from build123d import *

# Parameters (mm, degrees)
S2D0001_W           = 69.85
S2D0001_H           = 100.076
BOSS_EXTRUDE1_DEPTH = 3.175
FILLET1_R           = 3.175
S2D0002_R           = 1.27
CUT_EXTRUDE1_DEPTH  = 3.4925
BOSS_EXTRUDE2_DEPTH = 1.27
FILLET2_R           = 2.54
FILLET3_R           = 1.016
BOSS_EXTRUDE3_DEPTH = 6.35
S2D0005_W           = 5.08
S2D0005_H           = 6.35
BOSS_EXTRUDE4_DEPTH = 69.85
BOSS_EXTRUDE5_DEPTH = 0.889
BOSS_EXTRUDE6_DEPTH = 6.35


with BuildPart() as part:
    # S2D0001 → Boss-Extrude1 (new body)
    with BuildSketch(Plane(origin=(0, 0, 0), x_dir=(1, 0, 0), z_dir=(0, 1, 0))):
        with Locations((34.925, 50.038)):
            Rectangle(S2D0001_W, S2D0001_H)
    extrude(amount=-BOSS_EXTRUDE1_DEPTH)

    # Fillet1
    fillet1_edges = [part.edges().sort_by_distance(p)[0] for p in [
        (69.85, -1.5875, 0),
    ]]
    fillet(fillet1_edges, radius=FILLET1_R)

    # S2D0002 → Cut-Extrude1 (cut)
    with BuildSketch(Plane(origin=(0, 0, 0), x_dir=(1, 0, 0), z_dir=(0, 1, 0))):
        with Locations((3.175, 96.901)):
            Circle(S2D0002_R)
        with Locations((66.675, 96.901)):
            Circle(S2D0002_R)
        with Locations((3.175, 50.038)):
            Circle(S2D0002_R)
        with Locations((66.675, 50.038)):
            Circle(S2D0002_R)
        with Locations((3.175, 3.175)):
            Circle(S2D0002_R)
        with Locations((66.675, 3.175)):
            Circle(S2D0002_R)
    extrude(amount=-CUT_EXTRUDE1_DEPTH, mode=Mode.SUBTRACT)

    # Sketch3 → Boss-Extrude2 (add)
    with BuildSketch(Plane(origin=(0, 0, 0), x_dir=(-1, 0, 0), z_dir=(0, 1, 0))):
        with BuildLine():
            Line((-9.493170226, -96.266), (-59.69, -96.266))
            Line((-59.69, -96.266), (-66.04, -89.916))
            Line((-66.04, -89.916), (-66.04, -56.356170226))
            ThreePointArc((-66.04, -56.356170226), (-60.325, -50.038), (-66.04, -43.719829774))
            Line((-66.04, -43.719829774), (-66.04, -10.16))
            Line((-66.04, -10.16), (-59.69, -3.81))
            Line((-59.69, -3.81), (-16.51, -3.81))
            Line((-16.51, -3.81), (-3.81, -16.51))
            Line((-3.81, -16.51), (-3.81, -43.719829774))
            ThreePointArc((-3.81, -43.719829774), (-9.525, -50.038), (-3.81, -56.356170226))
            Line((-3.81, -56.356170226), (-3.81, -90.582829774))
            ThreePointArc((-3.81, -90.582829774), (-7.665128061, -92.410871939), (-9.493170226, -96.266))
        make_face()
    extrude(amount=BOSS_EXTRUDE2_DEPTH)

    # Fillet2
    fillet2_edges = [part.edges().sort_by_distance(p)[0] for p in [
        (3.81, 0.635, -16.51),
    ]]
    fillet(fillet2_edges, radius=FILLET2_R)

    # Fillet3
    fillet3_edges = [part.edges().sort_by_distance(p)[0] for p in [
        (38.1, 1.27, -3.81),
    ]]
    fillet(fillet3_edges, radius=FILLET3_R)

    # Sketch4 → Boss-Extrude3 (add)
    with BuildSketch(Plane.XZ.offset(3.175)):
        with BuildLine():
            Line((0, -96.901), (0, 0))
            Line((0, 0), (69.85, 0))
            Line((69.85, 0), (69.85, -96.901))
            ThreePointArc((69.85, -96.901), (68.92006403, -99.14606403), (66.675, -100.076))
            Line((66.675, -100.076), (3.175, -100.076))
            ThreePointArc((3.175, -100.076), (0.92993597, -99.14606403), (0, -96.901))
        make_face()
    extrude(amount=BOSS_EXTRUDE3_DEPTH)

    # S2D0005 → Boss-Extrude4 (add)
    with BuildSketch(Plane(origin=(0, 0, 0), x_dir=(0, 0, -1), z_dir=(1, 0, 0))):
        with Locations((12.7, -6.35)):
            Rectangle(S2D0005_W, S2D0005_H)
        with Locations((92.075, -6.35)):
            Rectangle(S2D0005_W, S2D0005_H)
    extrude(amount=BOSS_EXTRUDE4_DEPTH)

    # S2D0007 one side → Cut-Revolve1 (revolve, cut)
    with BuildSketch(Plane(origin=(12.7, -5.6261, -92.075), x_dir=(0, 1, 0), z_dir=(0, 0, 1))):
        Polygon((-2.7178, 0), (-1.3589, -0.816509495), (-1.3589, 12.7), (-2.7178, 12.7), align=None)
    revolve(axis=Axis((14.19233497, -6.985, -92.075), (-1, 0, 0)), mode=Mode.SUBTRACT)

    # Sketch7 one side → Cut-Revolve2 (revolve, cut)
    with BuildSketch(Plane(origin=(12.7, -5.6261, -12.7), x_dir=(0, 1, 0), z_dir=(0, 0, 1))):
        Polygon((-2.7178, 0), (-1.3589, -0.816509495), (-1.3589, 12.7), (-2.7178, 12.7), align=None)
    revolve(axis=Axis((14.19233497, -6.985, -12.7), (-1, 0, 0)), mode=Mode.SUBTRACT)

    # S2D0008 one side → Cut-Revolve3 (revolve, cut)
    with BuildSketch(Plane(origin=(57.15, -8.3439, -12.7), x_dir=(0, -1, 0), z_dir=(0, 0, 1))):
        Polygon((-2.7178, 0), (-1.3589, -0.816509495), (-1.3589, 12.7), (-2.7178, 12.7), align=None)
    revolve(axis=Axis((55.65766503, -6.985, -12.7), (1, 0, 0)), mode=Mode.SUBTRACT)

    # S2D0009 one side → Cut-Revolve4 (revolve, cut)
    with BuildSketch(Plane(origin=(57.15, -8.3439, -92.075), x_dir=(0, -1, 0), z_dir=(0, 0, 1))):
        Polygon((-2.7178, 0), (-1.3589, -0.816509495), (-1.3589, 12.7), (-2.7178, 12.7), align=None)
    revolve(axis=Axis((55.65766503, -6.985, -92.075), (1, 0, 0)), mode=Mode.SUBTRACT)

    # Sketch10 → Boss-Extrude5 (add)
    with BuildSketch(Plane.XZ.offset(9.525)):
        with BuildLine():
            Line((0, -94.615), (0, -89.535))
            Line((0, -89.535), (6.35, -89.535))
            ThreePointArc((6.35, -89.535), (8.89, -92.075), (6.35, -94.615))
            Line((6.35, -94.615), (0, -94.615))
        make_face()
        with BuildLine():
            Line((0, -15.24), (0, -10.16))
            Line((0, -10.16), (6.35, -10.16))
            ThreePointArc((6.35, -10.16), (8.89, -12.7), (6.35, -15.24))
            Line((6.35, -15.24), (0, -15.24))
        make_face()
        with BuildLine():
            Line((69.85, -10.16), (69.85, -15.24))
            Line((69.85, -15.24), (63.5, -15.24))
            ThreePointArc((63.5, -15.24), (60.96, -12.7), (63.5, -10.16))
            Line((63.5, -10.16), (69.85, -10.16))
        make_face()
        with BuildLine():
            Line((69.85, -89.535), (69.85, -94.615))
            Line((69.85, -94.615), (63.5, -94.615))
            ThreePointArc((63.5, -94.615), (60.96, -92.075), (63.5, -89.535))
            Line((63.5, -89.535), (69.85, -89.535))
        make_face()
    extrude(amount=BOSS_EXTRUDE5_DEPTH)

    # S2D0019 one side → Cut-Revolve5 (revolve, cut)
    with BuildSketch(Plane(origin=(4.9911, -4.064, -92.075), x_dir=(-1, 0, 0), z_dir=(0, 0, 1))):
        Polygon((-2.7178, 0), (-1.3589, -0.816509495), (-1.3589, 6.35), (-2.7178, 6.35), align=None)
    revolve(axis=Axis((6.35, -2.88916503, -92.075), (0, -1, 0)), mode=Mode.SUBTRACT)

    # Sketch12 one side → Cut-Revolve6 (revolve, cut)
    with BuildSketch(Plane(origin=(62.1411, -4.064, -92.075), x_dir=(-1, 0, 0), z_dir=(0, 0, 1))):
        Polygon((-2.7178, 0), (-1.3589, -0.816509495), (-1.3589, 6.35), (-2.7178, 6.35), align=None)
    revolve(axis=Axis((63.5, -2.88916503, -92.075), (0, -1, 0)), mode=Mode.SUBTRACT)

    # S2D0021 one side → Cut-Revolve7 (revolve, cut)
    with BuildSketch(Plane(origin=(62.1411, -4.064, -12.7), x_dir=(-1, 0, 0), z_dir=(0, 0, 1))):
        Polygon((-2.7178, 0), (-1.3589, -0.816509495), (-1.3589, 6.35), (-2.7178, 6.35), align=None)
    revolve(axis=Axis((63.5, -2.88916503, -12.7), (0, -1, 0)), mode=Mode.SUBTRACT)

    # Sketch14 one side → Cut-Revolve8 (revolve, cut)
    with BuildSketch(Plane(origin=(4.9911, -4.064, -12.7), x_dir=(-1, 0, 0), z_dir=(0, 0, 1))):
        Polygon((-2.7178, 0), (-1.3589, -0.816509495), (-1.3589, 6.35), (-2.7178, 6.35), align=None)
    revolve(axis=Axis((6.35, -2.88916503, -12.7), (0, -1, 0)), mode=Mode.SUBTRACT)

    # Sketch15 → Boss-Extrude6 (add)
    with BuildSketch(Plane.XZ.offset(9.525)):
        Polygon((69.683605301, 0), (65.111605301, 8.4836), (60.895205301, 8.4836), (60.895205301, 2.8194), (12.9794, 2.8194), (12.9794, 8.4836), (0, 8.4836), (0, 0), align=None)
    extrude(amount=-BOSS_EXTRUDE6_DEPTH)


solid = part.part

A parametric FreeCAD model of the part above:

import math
import FreeCAD as App
import Part
import Sketcher

V = App.Vector
Q = App.Units.Quantity


def edges_at(feature, points):
    """Names of the edges that pass closest to the given points."""
    edges = feature.Shape.Edges
    near = lambda p: min(range(len(edges)), key=lambda i: edges[i].distToShape(Part.Vertex(*p))[0])
    return sorted({f"Edge{near(p) + 1}" for p in points})


def add_polygon(sketch, points):
    """Adds a closed chain of lines whose ends are joined by coincident constraints."""
    first, n = sketch.GeometryCount, len(points)
    for a, b in zip(points, points[1:] + points[:1]):
        sketch.addGeometry(Part.LineSegment(App.Vector(*a, 0), App.Vector(*b, 0)), False)
    for i in range(n):
        sketch.addConstraint(Sketcher.Constraint("Coincident", first + i, 2, first + (i + 1) % n, 1))

doc = App.newDocument("Part")
body = doc.addObject("PartDesign::Body", "Body")

sketch1 = body.newObject("Sketcher::SketchObject", "Sketch")
sketch1.AttachmentSupport = (doc.getObject("XZ_Plane"), [""])
sketch1.MapMode = "FlatFace"
add_polygon(sketch1, [(0, -100), (0, 0), (70, 0), (70, -100)])
sketch1.addConstraint([
    Sketcher.Constraint("Vertical", 0),
    Sketcher.Constraint("Horizontal", 1),
    Sketcher.Constraint("Vertical", 2),
    Sketcher.Constraint("Horizontal", 3),
    Sketcher.Constraint("Coincident", 0, 2, -1, 1),
    Sketcher.Constraint("DistanceX", 1, 1, 1, 2, Q("2.75 in")),
    Sketcher.Constraint("DistanceY", 0, 1, 0, 2, Q("3.94 in")),
])
pad1 = body.newObject("PartDesign::Pad", "Pad")
pad1.Profile = sketch1
pad1.Length = Q("0.125 in")
doc.recompute()

fillet = body.newObject("PartDesign::Fillet", "Fillet")
fillet.Base = (pad1, edges_at(pad1, [(69.85, -1.587, 0)]))
fillet.Radius = Q("0.125 in")

sketch2 = body.newObject("Sketcher::SketchObject", "Sketch001")
sketch2.AttachmentSupport = (doc.getObject("XZ_Plane"), [""])
sketch2.MapMode = "FlatFace"
sketch2.addGeometry([
    Part.Circle(V(3.2, -96.9, 0), V(0, 0, 1), 1.3),
    Part.Circle(V(66.7, -96.9, 0), V(0, 0, 1), 1.3),
    Part.Circle(V(3.2, -50, 0), V(0, 0, 1), 1.3),
    Part.Circle(V(66.7, -50, 0), V(0, 0, 1), 1.3),
    Part.Circle(V(3.2, -3.2, 0), V(0, 0, 1), 1.3),
    Part.Circle(V(66.7, -3.2, 0), V(0, 0, 1), 1.3),
], False)
sketch2.addConstraint([
    Sketcher.Constraint("Equal", 0, 1),
    Sketcher.Constraint("Equal", 1, 2),
    Sketcher.Constraint("Equal", 2, 3),
    Sketcher.Constraint("Equal", 3, 4),
    Sketcher.Constraint("Equal", 4, 5),
    Sketcher.Constraint("Horizontal", 0, 3, 1, 3),
    Sketcher.Constraint("Horizontal", 2, 3, 3, 3),
    Sketcher.Constraint("Horizontal", 4, 3, 5, 3),
    Sketcher.Constraint("Vertical", 0, 3, 2, 3),
    Sketcher.Constraint("Vertical", 1, 3, 3, 3),
    Sketcher.Constraint("Vertical", 2, 3, 4, 3),
    Sketcher.Constraint("Vertical", 3, 3, 5, 3),
    Sketcher.Constraint("Diameter", 0, Q("0.1 in")),
    Sketcher.Constraint("DistanceX", 0, 3, 1, 3, Q("2.5 in")),
    Sketcher.Constraint("DistanceY", 2, 3, -1, 1, Q("1.97 in")),
    Sketcher.Constraint("DistanceY", 0, 3, 4, 3, Q("3.69 in")),
    Sketcher.Constraint("DistanceX", -1, 1, 0, 3, Q("0.125 in")),
    Sketcher.Constraint("DistanceY", 0, 3, -1, 1, Q("3.815 in")),
])
pocket1 = body.newObject("PartDesign::Pocket", "Pocket")
pocket1.Profile = sketch2
pocket1.Length = Q("0.1375 in")
pocket1.Reversed = True

sketch3 = body.newObject("Sketcher::SketchObject", "Sketch002")
sketch3.AttachmentSupport = (doc.getObject("XZ_Plane"), [""])
sketch3.MapMode = "FlatFace"
sketch3.addGeometry([
    Part.LineSegment(V(60, -96, 0), V(9, -96, 0)),
    Part.ArcOfCircle(Part.Circle(V(3, -97, 0), V(0, 0, 1), 6), math.radians(6), math.radians(84)),
    Part.LineSegment(V(4, -91, 0), V(4, -56, 0)),
    Part.ArcOfCircle(Part.Circle(V(3, -50, 0), V(0, 0, 1), 6), math.radians(-84), math.radians(84)),
    Part.LineSegment(V(4, -44, 0), V(4, -17, 0)),
    Part.LineSegment(V(4, -17, 0), V(17, -4, 0)),
    Part.LineSegment(V(17, -4, 0), V(60, -4, 0)),
    Part.LineSegment(V(60, -4, 0), V(66, -10, 0)),
    Part.LineSegment(V(66, -10, 0), V(66, -44, 0)),
    Part.ArcOfCircle(Part.Circle(V(67, -50, 0), V(0, 0, 1), 6), math.radians(96), math.radians(264)),
    Part.LineSegment(V(66, -56, 0), V(66, -90, 0)),
    Part.LineSegment(V(66, -90, 0), V(60, -96, 0)),
], False)
sketch3.addConstraint([
    Sketcher.Constraint("Coincident", 0, 2, 1, 1),
    Sketcher.Constraint("Coincident", 1, 2, 2, 1),
    Sketcher.Constraint("Coincident", 2, 2, 3, 1),
    Sketcher.Constraint("Coincident", 3, 2, 4, 1),
    Sketcher.Constraint("Coincident", 4, 2, 5, 1),
    Sketcher.Constraint("Coincident", 5, 2, 6, 1),
    Sketcher.Constraint("Coincident", 6, 2, 7, 1),
    Sketcher.Constraint("Coincident", 7, 2, 8, 1),
    Sketcher.Constraint("Coincident", 8, 2, 9, 1),
    Sketcher.Constraint("Coincident", 9, 2, 10, 1),
    Sketcher.Constraint("Coincident", 10, 2, 11, 1),
    Sketcher.Constraint("Coincident", 11, 2, 0, 1),
    Sketcher.Constraint("Horizontal", 0),
    Sketcher.Constraint("Vertical", 2),
    Sketcher.Constraint("Vertical", 4),
    Sketcher.Constraint("Horizontal", 6),
    Sketcher.Constraint("Vertical", 8),
    Sketcher.Constraint("Vertical", 10),
    Sketcher.Constraint("Equal", 1, 3),
    Sketcher.Constraint("Equal", 3, 9),
    Sketcher.Constraint("Perpendicular", 5, 7),
    Sketcher.Constraint("Perpendicular", 7, 11),
    Sketcher.Constraint("Horizontal", 3, 3, 9, 3),
    Sketcher.Constraint("Horizontal", 3, 2, 8, 2),
    Sketcher.Constraint("Horizontal", 2, 2, 9, 2),
    Sketcher.Constraint("Vertical", 1, 3, 3, 3),
    Sketcher.Constraint("Vertical", 2, 2, 3, 2),
    Sketcher.Constraint("Vertical", 6, 2, 11, 2),
    Sketcher.Constraint("Equal", 8, 10),
    Sketcher.Constraint("Equal", 7, 11),
    Sketcher.Constraint("Radius", 1, Q("0.25 in")),
    Sketcher.Constraint("DistanceX", 6, 1, 6, 2, Q("1.7 in")),
    Sketcher.Constraint("DistanceX", -1, 1, 7, 2, Q("2.6 in")),
    Sketcher.Constraint("DistanceY", 7, 2, -1, 1, Q("0.4 in")),
    Sketcher.Constraint("DistanceX", 3, 3, 9, 3, Q("2.5 in")),
    Sketcher.Constraint("DistanceX", 4, 2, 5, 2, Q("0.5 in")),
    Sketcher.Constraint("DistanceY", 3, 3, -1, 1, Q("1.97 in")),
    Sketcher.Constraint("DistanceY", 0, 2, -1, 1, Q("3.79 in")),
    Sketcher.Constraint("DistanceY", 1, 3, -1, 1, Q("3.815 in")),
])
pad2 = body.newObject("PartDesign::Pad", "Pad001")
pad2.Profile = sketch3
pad2.Length = Q("0.05 in")
pad2.Reversed = True
doc.recompute()

fillet2 = body.newObject("PartDesign::Fillet", "Fillet001")
fillet2.Base = (pad2, edges_at(pad2, [(3.81, 0.635, -16.51)]))
fillet2.Radius = Q("0.1 in")
doc.recompute()

fillet3 = body.newObject("PartDesign::Fillet", "Fillet002")
fillet3.Base = (fillet2, edges_at(fillet2, [(38.1, 1.27, -3.81)]))
fillet3.Radius = Q("0.04 in")

sketch4 = body.newObject("Sketcher::SketchObject", "Sketch003")
sketch4.AttachmentSupport = (doc.getObject("XZ_Plane"), [""])
sketch4.MapMode = "FlatFace"
sketch4.AttachmentOffset = App.Placement(V(0, 0, 0.125 * 25.4), App.Rotation())
sketch4.addGeometry([
    Part.LineSegment(V(0, 0, 0), V(0, -96.9, 0)),
    Part.ArcOfCircle(Part.Circle(V(3.2, -96.9, 0), V(0, 0, 1), 3.2), math.radians(-180), math.radians(-90)),
    Part.LineSegment(V(3.2, -100.1, 0), V(66.7, -100.1, 0)),
    Part.ArcOfCircle(Part.Circle(V(66.7, -96.9, 0), V(0, 0, 1), 3.2), math.radians(-90), math.radians(0)),
    Part.LineSegment(V(69.8, -96.9, 0), V(69.8, 0, 0)),
    Part.LineSegment(V(69.8, 0, 0), V(0, 0, 0)),
], False)
sketch4.addConstraint([
    Sketcher.Constraint("Tangent", 0, 2, 1, 1),
    Sketcher.Constraint("Tangent", 1, 2, 2, 1),
    Sketcher.Constraint("Tangent", 2, 2, 3, 1),
    Sketcher.Constraint("Tangent", 3, 2, 4, 1),
    Sketcher.Constraint("Coincident", 4, 2, 5, 1),
    Sketcher.Constraint("Coincident", 5, 2, 0, 1),
    Sketcher.Constraint("Vertical", 0),
    Sketcher.Constraint("Horizontal", 2),
    Sketcher.Constraint("Vertical", 4),
    Sketcher.Constraint("Horizontal", 5),
    Sketcher.Constraint("Coincident", 5, 2, -1, 1),
    Sketcher.Constraint("Equal", 1, 3),
    Sketcher.Constraint("DistanceX", 2, 1, 2, 2, Q("2.5 in")),
    Sketcher.Constraint("Radius", 1, Q("0.125 in")),
    Sketcher.Constraint("DistanceY", 0, 2, 0, 1, Q("3.815 in")),
])
pad3 = body.newObject("PartDesign::Pad", "Pad002")
pad3.Profile = sketch4
pad3.Length = Q("0.25 in")

sketch5 = body.newObject("Sketcher::SketchObject", "Sketch004")
sketch5.AttachmentSupport = (doc.getObject("YZ_Plane"), [""])
sketch5.MapMode = "FlatFace"
add_polygon(sketch5, [(-3, -10), (-10, -10), (-10, -15), (-3, -15)])
add_polygon(sketch5, [(-3, -90), (-10, -90), (-10, -95), (-3, -95)])
sketch5.addConstraint([
    Sketcher.Constraint("Horizontal", 0),
    Sketcher.Constraint("Vertical", 1),
    Sketcher.Constraint("Horizontal", 2),
    Sketcher.Constraint("Vertical", 3),
    Sketcher.Constraint("Horizontal", 4),
    Sketcher.Constraint("Vertical", 5),
    Sketcher.Constraint("Horizontal", 6),
    Sketcher.Constraint("Vertical", 7),
    Sketcher.Constraint("Vertical", 1, 2, 4, 2),
    Sketcher.Constraint("Vertical", 3, 2, 6, 2),
    Sketcher.Constraint("Equal", 3, 5),
    Sketcher.Constraint("DistanceY", 1, 2, 1, 1, Q("0.2 in")),
    Sketcher.Constraint("DistanceX", 0, 2, 0, 1, Q("0.25 in")),
    Sketcher.Constraint("DistanceY", 0, 2, -1, 1, Q("0.4 in")),
    Sketcher.Constraint("DistanceX", 0, 2, -1, 1, Q("0.375 in")),
    Sketcher.Constraint("DistanceY", 4, 2, -1, 1, Q("3.525 in")),
])
pad4 = body.newObject("PartDesign::Pad", "Pad003")
pad4.Profile = sketch5
pad4.Length = Q("2.75 in")

sketch6 = body.newObject("Sketcher::SketchObject", "Sketch005")
sketch6.AttachmentSupport = (doc.getObject("XY_Plane"), [""])
sketch6.MapMode = "FlatFace"
sketch6.AttachmentOffset = App.Placement(V(0, 0, -3.625 * 25.4), App.Rotation())
add_polygon(sketch6, [(12.7, -8.3), (13.5, -7), (0, -7), (0, -8.3)])
sketch6.addGeometry(Part.LineSegment(V(13.5, -7, 0), V(0, -7, 0)), True)
sketch6.addConstraint([
    Sketcher.Constraint("Horizontal", 1),
    Sketcher.Constraint("Vertical", 2),
    Sketcher.Constraint("Horizontal", 3),
    Sketcher.Constraint("Horizontal", 4),
    Sketcher.Constraint("Coincident", 4, 1, 0, 2),
    Sketcher.Constraint("PointOnObject", 1, 2, -2),
    Sketcher.Constraint("PointOnObject", 4, 2, -2),
    Sketcher.Constraint("DistanceX", 3, 1, 3, 2, Q("0.5 in")),
    Sketcher.Constraint("Angle", 0, Q("59 deg")),
    Sketcher.Constraint("DistanceY", 2, 2, 2, 1, Q("0.0535 in")),
    Sketcher.Constraint("DistanceY", 0, 2, -1, 1, Q("0.275 in")),
])
groove = body.newObject("PartDesign::Groove", "Groove")
groove.Profile = sketch6
groove.ReferenceAxis = (sketch6, ["Axis0"])
groove.Angle = 360

sketch7 = body.newObject("Sketcher::SketchObject", "Sketch006")
sketch7.AttachmentSupport = (doc.getObject("XY_Plane"), [""])
sketch7.MapMode = "FlatFace"
sketch7.AttachmentOffset = App.Placement(V(0, 0, -0.5 * 25.4), App.Rotation())
add_polygon(sketch7, [(12.7, -8.3), (13.5, -7), (0, -7), (0, -8.3)])
sketch7.addGeometry(Part.LineSegment(V(13.5, -7, 0), V(0, -7, 0)), True)
sketch7.addConstraint([
    Sketcher.Constraint("Horizontal", 1),
    Sketcher.Constraint("Vertical", 2),
    Sketcher.Constraint("Horizontal", 3),
    Sketcher.Constraint("Horizontal", 4),
    Sketcher.Constraint("Coincident", 4, 1, 0, 2),
    Sketcher.Constraint("PointOnObject", 1, 2, -2),
    Sketcher.Constraint("PointOnObject", 4, 2, -2),
    Sketcher.Constraint("DistanceX", 3, 1, 3, 2, Q("0.5 in")),
    Sketcher.Constraint("Angle", 0, Q("59 deg")),
    Sketcher.Constraint("DistanceY", 2, 2, 2, 1, Q("0.0535 in")),
    Sketcher.Constraint("DistanceY", 0, 2, -1, 1, Q("0.275 in")),
])
groove2 = body.newObject("PartDesign::Groove", "Groove001")
groove2.Profile = sketch7
groove2.ReferenceAxis = (sketch7, ["Axis0"])
groove2.Angle = 360

sketch8 = body.newObject("Sketcher::SketchObject", "Sketch007")
sketch8.AttachmentSupport = (doc.getObject("XY_Plane"), [""])
sketch8.MapMode = "FlatFace"
sketch8.AttachmentOffset = App.Placement(V(0, 0, -0.5 * 25.4), App.Rotation())
add_polygon(sketch8, [(57.1, -5.6), (56.3, -7), (69.8, -7), (69.8, -5.6)])
sketch8.addGeometry(Part.LineSegment(V(56.3, -7, 0), V(69.8, -7, 0)), True)
sketch8.addConstraint([
    Sketcher.Constraint("Horizontal", 1),
    Sketcher.Constraint("Vertical", 2),
    Sketcher.Constraint("Horizontal", 3),
    Sketcher.Constraint("Horizontal", 4),
    Sketcher.Constraint("Coincident", 4, 1, 0, 2),
    Sketcher.Constraint("Vertical", 2, 2, 4, 2),
    Sketcher.Constraint("DistanceX", 3, 2, 3, 1, Q("0.5 in")),
    Sketcher.Constraint("Angle", 0, Q("-121 deg")),
    Sketcher.Constraint("DistanceX", -1, 1, 1, 2, Q("2.75 in")),
    Sketcher.Constraint("DistanceY", 2, 1, 2, 2, Q("0.0535 in")),
    Sketcher.Constraint("DistanceY", 0, 2, -1, 1, Q("0.275 in")),
])
groove3 = body.newObject("PartDesign::Groove", "Groove002")
groove3.Profile = sketch8
groove3.ReferenceAxis = (sketch8, ["Axis0"])
groove3.Angle = 360

sketch9 = body.newObject("Sketcher::SketchObject", "Sketch008")
sketch9.AttachmentSupport = (doc.getObject("XY_Plane"), [""])
sketch9.MapMode = "FlatFace"
sketch9.AttachmentOffset = App.Placement(V(0, 0, -3.625 * 25.4), App.Rotation())
add_polygon(sketch9, [(57.1, -5.6), (56.3, -7), (69.8, -7), (69.8, -5.6)])
sketch9.addGeometry(Part.LineSegment(V(56.3, -7, 0), V(69.8, -7, 0)), True)
sketch9.addConstraint([
    Sketcher.Constraint("Horizontal", 1),
    Sketcher.Constraint("Vertical", 2),
    Sketcher.Constraint("Horizontal", 3),
    Sketcher.Constraint("Horizontal", 4),
    Sketcher.Constraint("Coincident", 4, 1, 0, 2),
    Sketcher.Constraint("Vertical", 2, 2, 4, 2),
    Sketcher.Constraint("DistanceX", 3, 2, 3, 1, Q("0.5 in")),
    Sketcher.Constraint("Angle", 0, Q("-121 deg")),
    Sketcher.Constraint("DistanceX", -1, 1, 1, 2, Q("2.75 in")),
    Sketcher.Constraint("DistanceY", 2, 1, 2, 2, Q("0.0535 in")),
    Sketcher.Constraint("DistanceY", 0, 2, -1, 1, Q("0.275 in")),
])
groove4 = body.newObject("PartDesign::Groove", "Groove003")
groove4.Profile = sketch9
groove4.ReferenceAxis = (sketch9, ["Axis0"])
groove4.Angle = 360

sketch10 = body.newObject("Sketcher::SketchObject", "Sketch009")
sketch10.AttachmentSupport = (doc.getObject("XZ_Plane"), [""])
sketch10.MapMode = "FlatFace"
sketch10.AttachmentOffset = App.Placement(V(0, 0, 0.375 * 25.4), App.Rotation())
sketch10.addGeometry([
    Part.LineSegment(V(0, -89.5, 0), V(0, -94.6, 0)),
    Part.LineSegment(V(0, -94.6, 0), V(6.3, -94.6, 0)),
    Part.ArcOfCircle(Part.Circle(V(6.3, -92.1, 0), V(0, 0, 1), 2.5), math.radians(-90), math.radians(90)),
    Part.LineSegment(V(6.3, -89.5, 0), V(0, -89.5, 0)),
    Part.LineSegment(V(0, -10.2, 0), V(0, -15.2, 0)),
    Part.LineSegment(V(0, -15.2, 0), V(6.3, -15.2, 0)),
    Part.ArcOfCircle(Part.Circle(V(6.3, -12.7, 0), V(0, 0, 1), 2.5), math.radians(-90), math.radians(90)),
    Part.LineSegment(V(6.3, -10.2, 0), V(0, -10.2, 0)),
    Part.LineSegment(V(69.8, -15.2, 0), V(69.8, -10.2, 0)),
    Part.LineSegment(V(69.8, -10.2, 0), V(63.5, -10.2, 0)),
    Part.ArcOfCircle(Part.Circle(V(63.5, -12.7, 0), V(0, 0, 1), 2.5), math.radians(90), math.radians(270)),
    Part.LineSegment(V(63.5, -15.2, 0), V(69.8, -15.2, 0)),
    Part.LineSegment(V(69.8, -94.6, 0), V(69.8, -89.5, 0)),
    Part.LineSegment(V(69.8, -89.5, 0), V(63.5, -89.5, 0)),
    Part.ArcOfCircle(Part.Circle(V(63.5, -92.1, 0), V(0, 0, 1), 2.5), math.radians(90), math.radians(270)),
    Part.LineSegment(V(63.5, -94.6, 0), V(69.8, -94.6, 0)),
], False)
sketch10.addConstraint([
    Sketcher.Constraint("Coincident", 0, 2, 1, 1),
    Sketcher.Constraint("Tangent", 1, 2, 2, 1),
    Sketcher.Constraint("Tangent", 2, 2, 3, 1),
    Sketcher.Constraint("Coincident", 3, 2, 0, 1),
    Sketcher.Constraint("Coincident", 4, 2, 5, 1),
    Sketcher.Constraint("Tangent", 5, 2, 6, 1),
    Sketcher.Constraint("Tangent", 6, 2, 7, 1),
    Sketcher.Constraint("Coincident", 7, 2, 4, 1),
    Sketcher.Constraint("Coincident", 8, 2, 9, 1),
    Sketcher.Constraint("Tangent", 9, 2, 10, 1),
    Sketcher.Constraint("Tangent", 10, 2, 11, 1),
    Sketcher.Constraint("Coincident", 11, 2, 8, 1),
    Sketcher.Constraint("Coincident", 12, 2, 13, 1),
    Sketcher.Constraint("Tangent", 13, 2, 14, 1),
    Sketcher.Constraint("Tangent", 14, 2, 15, 1),
    Sketcher.Constraint("Coincident", 15, 2, 12, 1),
    Sketcher.Constraint("Vertical", 0),
    Sketcher.Constraint("Horizontal", 1),
    Sketcher.Constraint("Horizontal", 3),
    Sketcher.Constraint("Vertical", 4),
    Sketcher.Constraint("Horizontal", 5),
    Sketcher.Constraint("Horizontal", 7),
    Sketcher.Constraint("Vertical", 8),
    Sketcher.Constraint("Horizontal", 9),
    Sketcher.Constraint("Horizontal", 11),
    Sketcher.Constraint("Vertical", 12),
    Sketcher.Constraint("Horizontal", 13),
    Sketcher.Constraint("Horizontal", 15),
    Sketcher.Constraint("Equal", 2, 6),
    Sketcher.Constraint("Equal", 6, 10),
    Sketcher.Constraint("Equal", 10, 14),
    Sketcher.Constraint("PointOnObject", 0, 2, -2),
    Sketcher.Constraint("PointOnObject", 4, 2, -2),
    Sketcher.Constraint("Horizontal", 6, 3, 10, 3),
    Sketcher.Constraint("Horizontal", 2, 3, 14, 3),
    Sketcher.Constraint("Vertical", 2, 3, 6, 3),
    Sketcher.Constraint("Vertical", 10, 3, 14, 3),
    Sketcher.Constraint("Vertical", 11, 2, 12, 2),
    Sketcher.Constraint("Equal", 7, 9),
    Sketcher.Constraint("Radius", 2, Q("0.1 in")),
    Sketcher.Constraint("DistanceX", 1, 1, 1, 2, Q("0.25 in")),
    Sketcher.Constraint("DistanceY", 6, 3, -1, 1, Q("0.5 in")),
    Sketcher.Constraint("DistanceX", -1, 1, 10, 3, Q("2.5 in")),
    Sketcher.Constraint("DistanceY", 2, 3, -1, 1, Q("3.625 in")),
])
pad5 = body.newObject("PartDesign::Pad", "Pad004")
pad5.Profile = sketch10
pad5.Length = Q("0.035 in")

sketch11 = body.newObject("Sketcher::SketchObject", "Sketch010")
sketch11.AttachmentSupport = (doc.getObject("XY_Plane"), [""])
sketch11.MapMode = "FlatFace"
sketch11.AttachmentOffset = App.Placement(V(0, 0, -3.625 * 25.4), App.Rotation())
add_polygon(sketch11, [(7.7, -4.1), (6.3, -3.2), (6.3, -10.4), (7.7, -10.4)])
sketch11.addGeometry(Part.LineSegment(V(6.3, -3.2, 0), V(6.3, -10.4, 0)), True)
sketch11.addConstraint([
    Sketcher.Constraint("Vertical", 1),
    Sketcher.Constraint("Horizontal", 2),
    Sketcher.Constraint("Vertical", 3),
    Sketcher.Constraint("Vertical", 4),
    Sketcher.Constraint("Coincident", 4, 1, 0, 2),
    Sketcher.Constraint("Horizontal", 2, 2, 4, 2),
    Sketcher.Constraint("Angle", 0, Q("149 deg")),
    Sketcher.Constraint("DistanceY", 3, 1, 3, 2, Q("0.25 in")),
    Sketcher.Constraint("DistanceX", -1, 1, 0, 2, Q("0.25 in")),
    Sketcher.Constraint("DistanceY", 1, 2, -1, 1, Q("0.41 in")),
    Sketcher.Constraint("DistanceX", 2, 1, 2, 2, Q("0.0535 in")),
])
groove5 = body.newObject("PartDesign::Groove", "Groove004")
groove5.Profile = sketch11
groove5.ReferenceAxis = (sketch11, ["Axis0"])
groove5.Angle = 360

sketch12 = body.newObject("Sketcher::SketchObject", "Sketch011")
sketch12.AttachmentSupport = (doc.getObject("XY_Plane"), [""])
sketch12.MapMode = "FlatFace"
sketch12.AttachmentOffset = App.Placement(V(0, 0, -3.625 * 25.4), App.Rotation())
add_polygon(sketch12, [(64.9, -4.1), (63.5, -3.2), (63.5, -10.4), (64.9, -10.4)])
sketch12.addGeometry(Part.LineSegment(V(63.5, -3.2, 0), V(63.5, -10.4, 0)), True)
sketch12.addConstraint([
    Sketcher.Constraint("Vertical", 1),
    Sketcher.Constraint("Horizontal", 2),
    Sketcher.Constraint("Vertical", 3),
    Sketcher.Constraint("Vertical", 4),
    Sketcher.Constraint("Coincident", 4, 1, 0, 2),
    Sketcher.Constraint("Horizontal", 2, 2, 4, 2),
    Sketcher.Constraint("Angle", 0, Q("149 deg")),
    Sketcher.Constraint("DistanceY", 3, 1, 3, 2, Q("0.25 in")),
    Sketcher.Constraint("DistanceX", -1, 1, 0, 2, Q("2.5 in")),
    Sketcher.Constraint("DistanceY", 1, 2, -1, 1, Q("0.41 in")),
    Sketcher.Constraint("DistanceX", 2, 1, 2, 2, Q("0.0535 in")),
])
groove6 = body.newObject("PartDesign::Groove", "Groove005")
groove6.Profile = sketch12
groove6.ReferenceAxis = (sketch12, ["Axis0"])
groove6.Angle = 360

sketch13 = body.newObject("Sketcher::SketchObject", "Sketch012")
sketch13.AttachmentSupport = (doc.getObject("XY_Plane"), [""])
sketch13.MapMode = "FlatFace"
sketch13.AttachmentOffset = App.Placement(V(0, 0, -0.5 * 25.4), App.Rotation())
add_polygon(sketch13, [(64.9, -4.1), (63.5, -3.2), (63.5, -10.4), (64.9, -10.4)])
sketch13.addGeometry(Part.LineSegment(V(63.5, -3.2, 0), V(63.5, -10.4, 0)), True)
sketch13.addConstraint([
    Sketcher.Constraint("Vertical", 1),
    Sketcher.Constraint("Horizontal", 2),
    Sketcher.Constraint("Vertical", 3),
    Sketcher.Constraint("Vertical", 4),
    Sketcher.Constraint("Coincident", 4, 1, 0, 2),
    Sketcher.Constraint("Horizontal", 2, 2, 4, 2),
    Sketcher.Constraint("Angle", 0, Q("149 deg")),
    Sketcher.Constraint("DistanceY", 3, 1, 3, 2, Q("0.25 in")),
    Sketcher.Constraint("DistanceX", -1, 1, 0, 2, Q("2.5 in")),
    Sketcher.Constraint("DistanceY", 1, 2, -1, 1, Q("0.41 in")),
    Sketcher.Constraint("DistanceX", 2, 1, 2, 2, Q("0.0535 in")),
])
groove7 = body.newObject("PartDesign::Groove", "Groove006")
groove7.Profile = sketch13
groove7.ReferenceAxis = (sketch13, ["Axis0"])
groove7.Angle = 360

sketch14 = body.newObject("Sketcher::SketchObject", "Sketch013")
sketch14.AttachmentSupport = (doc.getObject("XY_Plane"), [""])
sketch14.MapMode = "FlatFace"
sketch14.AttachmentOffset = App.Placement(V(0, 0, -0.5 * 25.4), App.Rotation())
add_polygon(sketch14, [(7.7, -4.1), (6.3, -3.2), (6.3, -10.4), (7.7, -10.4)])
sketch14.addGeometry(Part.LineSegment(V(6.3, -3.2, 0), V(6.3, -10.4, 0)), True)
sketch14.addConstraint([
    Sketcher.Constraint("Vertical", 1),
    Sketcher.Constraint("Horizontal", 2),
    Sketcher.Constraint("Vertical", 3),
    Sketcher.Constraint("Vertical", 4),
    Sketcher.Constraint("Coincident", 4, 1, 0, 2),
    Sketcher.Constraint("Horizontal", 2, 2, 4, 2),
    Sketcher.Constraint("Angle", 0, Q("149 deg")),
    Sketcher.Constraint("DistanceY", 3, 1, 3, 2, Q("0.25 in")),
    Sketcher.Constraint("DistanceX", -1, 1, 0, 2, Q("0.25 in")),
    Sketcher.Constraint("DistanceY", 1, 2, -1, 1, Q("0.41 in")),
    Sketcher.Constraint("DistanceX", 2, 1, 2, 2, Q("0.0535 in")),
])
groove8 = body.newObject("PartDesign::Groove", "Groove007")
groove8.Profile = sketch14
groove8.ReferenceAxis = (sketch14, ["Axis0"])
groove8.Angle = 360

sketch15 = body.newObject("Sketcher::SketchObject", "Sketch014")
sketch15.AttachmentSupport = (doc.getObject("XZ_Plane"), [""])
sketch15.MapMode = "FlatFace"
sketch15.AttachmentOffset = App.Placement(V(0, 0, 0.375 * 25.4), App.Rotation())
add_polygon(sketch15, [(69.7, 0), (65.1, 8.5), (60.9, 8.5), (60.9, 2.8), (13, 2.8), (13, 8.5), (0, 8.5), (0, 0)])
sketch15.addConstraint([
    Sketcher.Constraint("Horizontal", 1),
    Sketcher.Constraint("Vertical", 2),
    Sketcher.Constraint("Horizontal", 3),
    Sketcher.Constraint("Vertical", 4),
    Sketcher.Constraint("Horizontal", 5),
    Sketcher.Constraint("Vertical", 6),
    Sketcher.Constraint("Horizontal", 7),
    Sketcher.Constraint("Coincident", 6, 2, -1, 1),
    Sketcher.Constraint("Horizontal", 1, 2, 4, 2),
    Sketcher.Constraint("DistanceX", 1, 2, 1, 1, Q("0.166 in")),
    Sketcher.Constraint("DistanceX", 5, 2, 5, 1, Q("0.511 in")),
    Sketcher.Constraint("DistanceY", 2, 2, 2, 1, Q("0.223 in")),
    Sketcher.Constraint("DistanceY", 6, 2, 6, 1, Q("0.334 in")),
    Sketcher.Constraint("DistanceX", 0, 2, 7, 2, Q("0.18 in")),
    Sketcher.Constraint("DistanceX", 3, 2, 3, 1, 47.915805),
])
pad6 = body.newObject("PartDesign::Pad", "Pad005")
pad6.Profile = sketch15
pad6.Length = Q("0.25 in")
pad6.Reversed = True

doc.recompute()
